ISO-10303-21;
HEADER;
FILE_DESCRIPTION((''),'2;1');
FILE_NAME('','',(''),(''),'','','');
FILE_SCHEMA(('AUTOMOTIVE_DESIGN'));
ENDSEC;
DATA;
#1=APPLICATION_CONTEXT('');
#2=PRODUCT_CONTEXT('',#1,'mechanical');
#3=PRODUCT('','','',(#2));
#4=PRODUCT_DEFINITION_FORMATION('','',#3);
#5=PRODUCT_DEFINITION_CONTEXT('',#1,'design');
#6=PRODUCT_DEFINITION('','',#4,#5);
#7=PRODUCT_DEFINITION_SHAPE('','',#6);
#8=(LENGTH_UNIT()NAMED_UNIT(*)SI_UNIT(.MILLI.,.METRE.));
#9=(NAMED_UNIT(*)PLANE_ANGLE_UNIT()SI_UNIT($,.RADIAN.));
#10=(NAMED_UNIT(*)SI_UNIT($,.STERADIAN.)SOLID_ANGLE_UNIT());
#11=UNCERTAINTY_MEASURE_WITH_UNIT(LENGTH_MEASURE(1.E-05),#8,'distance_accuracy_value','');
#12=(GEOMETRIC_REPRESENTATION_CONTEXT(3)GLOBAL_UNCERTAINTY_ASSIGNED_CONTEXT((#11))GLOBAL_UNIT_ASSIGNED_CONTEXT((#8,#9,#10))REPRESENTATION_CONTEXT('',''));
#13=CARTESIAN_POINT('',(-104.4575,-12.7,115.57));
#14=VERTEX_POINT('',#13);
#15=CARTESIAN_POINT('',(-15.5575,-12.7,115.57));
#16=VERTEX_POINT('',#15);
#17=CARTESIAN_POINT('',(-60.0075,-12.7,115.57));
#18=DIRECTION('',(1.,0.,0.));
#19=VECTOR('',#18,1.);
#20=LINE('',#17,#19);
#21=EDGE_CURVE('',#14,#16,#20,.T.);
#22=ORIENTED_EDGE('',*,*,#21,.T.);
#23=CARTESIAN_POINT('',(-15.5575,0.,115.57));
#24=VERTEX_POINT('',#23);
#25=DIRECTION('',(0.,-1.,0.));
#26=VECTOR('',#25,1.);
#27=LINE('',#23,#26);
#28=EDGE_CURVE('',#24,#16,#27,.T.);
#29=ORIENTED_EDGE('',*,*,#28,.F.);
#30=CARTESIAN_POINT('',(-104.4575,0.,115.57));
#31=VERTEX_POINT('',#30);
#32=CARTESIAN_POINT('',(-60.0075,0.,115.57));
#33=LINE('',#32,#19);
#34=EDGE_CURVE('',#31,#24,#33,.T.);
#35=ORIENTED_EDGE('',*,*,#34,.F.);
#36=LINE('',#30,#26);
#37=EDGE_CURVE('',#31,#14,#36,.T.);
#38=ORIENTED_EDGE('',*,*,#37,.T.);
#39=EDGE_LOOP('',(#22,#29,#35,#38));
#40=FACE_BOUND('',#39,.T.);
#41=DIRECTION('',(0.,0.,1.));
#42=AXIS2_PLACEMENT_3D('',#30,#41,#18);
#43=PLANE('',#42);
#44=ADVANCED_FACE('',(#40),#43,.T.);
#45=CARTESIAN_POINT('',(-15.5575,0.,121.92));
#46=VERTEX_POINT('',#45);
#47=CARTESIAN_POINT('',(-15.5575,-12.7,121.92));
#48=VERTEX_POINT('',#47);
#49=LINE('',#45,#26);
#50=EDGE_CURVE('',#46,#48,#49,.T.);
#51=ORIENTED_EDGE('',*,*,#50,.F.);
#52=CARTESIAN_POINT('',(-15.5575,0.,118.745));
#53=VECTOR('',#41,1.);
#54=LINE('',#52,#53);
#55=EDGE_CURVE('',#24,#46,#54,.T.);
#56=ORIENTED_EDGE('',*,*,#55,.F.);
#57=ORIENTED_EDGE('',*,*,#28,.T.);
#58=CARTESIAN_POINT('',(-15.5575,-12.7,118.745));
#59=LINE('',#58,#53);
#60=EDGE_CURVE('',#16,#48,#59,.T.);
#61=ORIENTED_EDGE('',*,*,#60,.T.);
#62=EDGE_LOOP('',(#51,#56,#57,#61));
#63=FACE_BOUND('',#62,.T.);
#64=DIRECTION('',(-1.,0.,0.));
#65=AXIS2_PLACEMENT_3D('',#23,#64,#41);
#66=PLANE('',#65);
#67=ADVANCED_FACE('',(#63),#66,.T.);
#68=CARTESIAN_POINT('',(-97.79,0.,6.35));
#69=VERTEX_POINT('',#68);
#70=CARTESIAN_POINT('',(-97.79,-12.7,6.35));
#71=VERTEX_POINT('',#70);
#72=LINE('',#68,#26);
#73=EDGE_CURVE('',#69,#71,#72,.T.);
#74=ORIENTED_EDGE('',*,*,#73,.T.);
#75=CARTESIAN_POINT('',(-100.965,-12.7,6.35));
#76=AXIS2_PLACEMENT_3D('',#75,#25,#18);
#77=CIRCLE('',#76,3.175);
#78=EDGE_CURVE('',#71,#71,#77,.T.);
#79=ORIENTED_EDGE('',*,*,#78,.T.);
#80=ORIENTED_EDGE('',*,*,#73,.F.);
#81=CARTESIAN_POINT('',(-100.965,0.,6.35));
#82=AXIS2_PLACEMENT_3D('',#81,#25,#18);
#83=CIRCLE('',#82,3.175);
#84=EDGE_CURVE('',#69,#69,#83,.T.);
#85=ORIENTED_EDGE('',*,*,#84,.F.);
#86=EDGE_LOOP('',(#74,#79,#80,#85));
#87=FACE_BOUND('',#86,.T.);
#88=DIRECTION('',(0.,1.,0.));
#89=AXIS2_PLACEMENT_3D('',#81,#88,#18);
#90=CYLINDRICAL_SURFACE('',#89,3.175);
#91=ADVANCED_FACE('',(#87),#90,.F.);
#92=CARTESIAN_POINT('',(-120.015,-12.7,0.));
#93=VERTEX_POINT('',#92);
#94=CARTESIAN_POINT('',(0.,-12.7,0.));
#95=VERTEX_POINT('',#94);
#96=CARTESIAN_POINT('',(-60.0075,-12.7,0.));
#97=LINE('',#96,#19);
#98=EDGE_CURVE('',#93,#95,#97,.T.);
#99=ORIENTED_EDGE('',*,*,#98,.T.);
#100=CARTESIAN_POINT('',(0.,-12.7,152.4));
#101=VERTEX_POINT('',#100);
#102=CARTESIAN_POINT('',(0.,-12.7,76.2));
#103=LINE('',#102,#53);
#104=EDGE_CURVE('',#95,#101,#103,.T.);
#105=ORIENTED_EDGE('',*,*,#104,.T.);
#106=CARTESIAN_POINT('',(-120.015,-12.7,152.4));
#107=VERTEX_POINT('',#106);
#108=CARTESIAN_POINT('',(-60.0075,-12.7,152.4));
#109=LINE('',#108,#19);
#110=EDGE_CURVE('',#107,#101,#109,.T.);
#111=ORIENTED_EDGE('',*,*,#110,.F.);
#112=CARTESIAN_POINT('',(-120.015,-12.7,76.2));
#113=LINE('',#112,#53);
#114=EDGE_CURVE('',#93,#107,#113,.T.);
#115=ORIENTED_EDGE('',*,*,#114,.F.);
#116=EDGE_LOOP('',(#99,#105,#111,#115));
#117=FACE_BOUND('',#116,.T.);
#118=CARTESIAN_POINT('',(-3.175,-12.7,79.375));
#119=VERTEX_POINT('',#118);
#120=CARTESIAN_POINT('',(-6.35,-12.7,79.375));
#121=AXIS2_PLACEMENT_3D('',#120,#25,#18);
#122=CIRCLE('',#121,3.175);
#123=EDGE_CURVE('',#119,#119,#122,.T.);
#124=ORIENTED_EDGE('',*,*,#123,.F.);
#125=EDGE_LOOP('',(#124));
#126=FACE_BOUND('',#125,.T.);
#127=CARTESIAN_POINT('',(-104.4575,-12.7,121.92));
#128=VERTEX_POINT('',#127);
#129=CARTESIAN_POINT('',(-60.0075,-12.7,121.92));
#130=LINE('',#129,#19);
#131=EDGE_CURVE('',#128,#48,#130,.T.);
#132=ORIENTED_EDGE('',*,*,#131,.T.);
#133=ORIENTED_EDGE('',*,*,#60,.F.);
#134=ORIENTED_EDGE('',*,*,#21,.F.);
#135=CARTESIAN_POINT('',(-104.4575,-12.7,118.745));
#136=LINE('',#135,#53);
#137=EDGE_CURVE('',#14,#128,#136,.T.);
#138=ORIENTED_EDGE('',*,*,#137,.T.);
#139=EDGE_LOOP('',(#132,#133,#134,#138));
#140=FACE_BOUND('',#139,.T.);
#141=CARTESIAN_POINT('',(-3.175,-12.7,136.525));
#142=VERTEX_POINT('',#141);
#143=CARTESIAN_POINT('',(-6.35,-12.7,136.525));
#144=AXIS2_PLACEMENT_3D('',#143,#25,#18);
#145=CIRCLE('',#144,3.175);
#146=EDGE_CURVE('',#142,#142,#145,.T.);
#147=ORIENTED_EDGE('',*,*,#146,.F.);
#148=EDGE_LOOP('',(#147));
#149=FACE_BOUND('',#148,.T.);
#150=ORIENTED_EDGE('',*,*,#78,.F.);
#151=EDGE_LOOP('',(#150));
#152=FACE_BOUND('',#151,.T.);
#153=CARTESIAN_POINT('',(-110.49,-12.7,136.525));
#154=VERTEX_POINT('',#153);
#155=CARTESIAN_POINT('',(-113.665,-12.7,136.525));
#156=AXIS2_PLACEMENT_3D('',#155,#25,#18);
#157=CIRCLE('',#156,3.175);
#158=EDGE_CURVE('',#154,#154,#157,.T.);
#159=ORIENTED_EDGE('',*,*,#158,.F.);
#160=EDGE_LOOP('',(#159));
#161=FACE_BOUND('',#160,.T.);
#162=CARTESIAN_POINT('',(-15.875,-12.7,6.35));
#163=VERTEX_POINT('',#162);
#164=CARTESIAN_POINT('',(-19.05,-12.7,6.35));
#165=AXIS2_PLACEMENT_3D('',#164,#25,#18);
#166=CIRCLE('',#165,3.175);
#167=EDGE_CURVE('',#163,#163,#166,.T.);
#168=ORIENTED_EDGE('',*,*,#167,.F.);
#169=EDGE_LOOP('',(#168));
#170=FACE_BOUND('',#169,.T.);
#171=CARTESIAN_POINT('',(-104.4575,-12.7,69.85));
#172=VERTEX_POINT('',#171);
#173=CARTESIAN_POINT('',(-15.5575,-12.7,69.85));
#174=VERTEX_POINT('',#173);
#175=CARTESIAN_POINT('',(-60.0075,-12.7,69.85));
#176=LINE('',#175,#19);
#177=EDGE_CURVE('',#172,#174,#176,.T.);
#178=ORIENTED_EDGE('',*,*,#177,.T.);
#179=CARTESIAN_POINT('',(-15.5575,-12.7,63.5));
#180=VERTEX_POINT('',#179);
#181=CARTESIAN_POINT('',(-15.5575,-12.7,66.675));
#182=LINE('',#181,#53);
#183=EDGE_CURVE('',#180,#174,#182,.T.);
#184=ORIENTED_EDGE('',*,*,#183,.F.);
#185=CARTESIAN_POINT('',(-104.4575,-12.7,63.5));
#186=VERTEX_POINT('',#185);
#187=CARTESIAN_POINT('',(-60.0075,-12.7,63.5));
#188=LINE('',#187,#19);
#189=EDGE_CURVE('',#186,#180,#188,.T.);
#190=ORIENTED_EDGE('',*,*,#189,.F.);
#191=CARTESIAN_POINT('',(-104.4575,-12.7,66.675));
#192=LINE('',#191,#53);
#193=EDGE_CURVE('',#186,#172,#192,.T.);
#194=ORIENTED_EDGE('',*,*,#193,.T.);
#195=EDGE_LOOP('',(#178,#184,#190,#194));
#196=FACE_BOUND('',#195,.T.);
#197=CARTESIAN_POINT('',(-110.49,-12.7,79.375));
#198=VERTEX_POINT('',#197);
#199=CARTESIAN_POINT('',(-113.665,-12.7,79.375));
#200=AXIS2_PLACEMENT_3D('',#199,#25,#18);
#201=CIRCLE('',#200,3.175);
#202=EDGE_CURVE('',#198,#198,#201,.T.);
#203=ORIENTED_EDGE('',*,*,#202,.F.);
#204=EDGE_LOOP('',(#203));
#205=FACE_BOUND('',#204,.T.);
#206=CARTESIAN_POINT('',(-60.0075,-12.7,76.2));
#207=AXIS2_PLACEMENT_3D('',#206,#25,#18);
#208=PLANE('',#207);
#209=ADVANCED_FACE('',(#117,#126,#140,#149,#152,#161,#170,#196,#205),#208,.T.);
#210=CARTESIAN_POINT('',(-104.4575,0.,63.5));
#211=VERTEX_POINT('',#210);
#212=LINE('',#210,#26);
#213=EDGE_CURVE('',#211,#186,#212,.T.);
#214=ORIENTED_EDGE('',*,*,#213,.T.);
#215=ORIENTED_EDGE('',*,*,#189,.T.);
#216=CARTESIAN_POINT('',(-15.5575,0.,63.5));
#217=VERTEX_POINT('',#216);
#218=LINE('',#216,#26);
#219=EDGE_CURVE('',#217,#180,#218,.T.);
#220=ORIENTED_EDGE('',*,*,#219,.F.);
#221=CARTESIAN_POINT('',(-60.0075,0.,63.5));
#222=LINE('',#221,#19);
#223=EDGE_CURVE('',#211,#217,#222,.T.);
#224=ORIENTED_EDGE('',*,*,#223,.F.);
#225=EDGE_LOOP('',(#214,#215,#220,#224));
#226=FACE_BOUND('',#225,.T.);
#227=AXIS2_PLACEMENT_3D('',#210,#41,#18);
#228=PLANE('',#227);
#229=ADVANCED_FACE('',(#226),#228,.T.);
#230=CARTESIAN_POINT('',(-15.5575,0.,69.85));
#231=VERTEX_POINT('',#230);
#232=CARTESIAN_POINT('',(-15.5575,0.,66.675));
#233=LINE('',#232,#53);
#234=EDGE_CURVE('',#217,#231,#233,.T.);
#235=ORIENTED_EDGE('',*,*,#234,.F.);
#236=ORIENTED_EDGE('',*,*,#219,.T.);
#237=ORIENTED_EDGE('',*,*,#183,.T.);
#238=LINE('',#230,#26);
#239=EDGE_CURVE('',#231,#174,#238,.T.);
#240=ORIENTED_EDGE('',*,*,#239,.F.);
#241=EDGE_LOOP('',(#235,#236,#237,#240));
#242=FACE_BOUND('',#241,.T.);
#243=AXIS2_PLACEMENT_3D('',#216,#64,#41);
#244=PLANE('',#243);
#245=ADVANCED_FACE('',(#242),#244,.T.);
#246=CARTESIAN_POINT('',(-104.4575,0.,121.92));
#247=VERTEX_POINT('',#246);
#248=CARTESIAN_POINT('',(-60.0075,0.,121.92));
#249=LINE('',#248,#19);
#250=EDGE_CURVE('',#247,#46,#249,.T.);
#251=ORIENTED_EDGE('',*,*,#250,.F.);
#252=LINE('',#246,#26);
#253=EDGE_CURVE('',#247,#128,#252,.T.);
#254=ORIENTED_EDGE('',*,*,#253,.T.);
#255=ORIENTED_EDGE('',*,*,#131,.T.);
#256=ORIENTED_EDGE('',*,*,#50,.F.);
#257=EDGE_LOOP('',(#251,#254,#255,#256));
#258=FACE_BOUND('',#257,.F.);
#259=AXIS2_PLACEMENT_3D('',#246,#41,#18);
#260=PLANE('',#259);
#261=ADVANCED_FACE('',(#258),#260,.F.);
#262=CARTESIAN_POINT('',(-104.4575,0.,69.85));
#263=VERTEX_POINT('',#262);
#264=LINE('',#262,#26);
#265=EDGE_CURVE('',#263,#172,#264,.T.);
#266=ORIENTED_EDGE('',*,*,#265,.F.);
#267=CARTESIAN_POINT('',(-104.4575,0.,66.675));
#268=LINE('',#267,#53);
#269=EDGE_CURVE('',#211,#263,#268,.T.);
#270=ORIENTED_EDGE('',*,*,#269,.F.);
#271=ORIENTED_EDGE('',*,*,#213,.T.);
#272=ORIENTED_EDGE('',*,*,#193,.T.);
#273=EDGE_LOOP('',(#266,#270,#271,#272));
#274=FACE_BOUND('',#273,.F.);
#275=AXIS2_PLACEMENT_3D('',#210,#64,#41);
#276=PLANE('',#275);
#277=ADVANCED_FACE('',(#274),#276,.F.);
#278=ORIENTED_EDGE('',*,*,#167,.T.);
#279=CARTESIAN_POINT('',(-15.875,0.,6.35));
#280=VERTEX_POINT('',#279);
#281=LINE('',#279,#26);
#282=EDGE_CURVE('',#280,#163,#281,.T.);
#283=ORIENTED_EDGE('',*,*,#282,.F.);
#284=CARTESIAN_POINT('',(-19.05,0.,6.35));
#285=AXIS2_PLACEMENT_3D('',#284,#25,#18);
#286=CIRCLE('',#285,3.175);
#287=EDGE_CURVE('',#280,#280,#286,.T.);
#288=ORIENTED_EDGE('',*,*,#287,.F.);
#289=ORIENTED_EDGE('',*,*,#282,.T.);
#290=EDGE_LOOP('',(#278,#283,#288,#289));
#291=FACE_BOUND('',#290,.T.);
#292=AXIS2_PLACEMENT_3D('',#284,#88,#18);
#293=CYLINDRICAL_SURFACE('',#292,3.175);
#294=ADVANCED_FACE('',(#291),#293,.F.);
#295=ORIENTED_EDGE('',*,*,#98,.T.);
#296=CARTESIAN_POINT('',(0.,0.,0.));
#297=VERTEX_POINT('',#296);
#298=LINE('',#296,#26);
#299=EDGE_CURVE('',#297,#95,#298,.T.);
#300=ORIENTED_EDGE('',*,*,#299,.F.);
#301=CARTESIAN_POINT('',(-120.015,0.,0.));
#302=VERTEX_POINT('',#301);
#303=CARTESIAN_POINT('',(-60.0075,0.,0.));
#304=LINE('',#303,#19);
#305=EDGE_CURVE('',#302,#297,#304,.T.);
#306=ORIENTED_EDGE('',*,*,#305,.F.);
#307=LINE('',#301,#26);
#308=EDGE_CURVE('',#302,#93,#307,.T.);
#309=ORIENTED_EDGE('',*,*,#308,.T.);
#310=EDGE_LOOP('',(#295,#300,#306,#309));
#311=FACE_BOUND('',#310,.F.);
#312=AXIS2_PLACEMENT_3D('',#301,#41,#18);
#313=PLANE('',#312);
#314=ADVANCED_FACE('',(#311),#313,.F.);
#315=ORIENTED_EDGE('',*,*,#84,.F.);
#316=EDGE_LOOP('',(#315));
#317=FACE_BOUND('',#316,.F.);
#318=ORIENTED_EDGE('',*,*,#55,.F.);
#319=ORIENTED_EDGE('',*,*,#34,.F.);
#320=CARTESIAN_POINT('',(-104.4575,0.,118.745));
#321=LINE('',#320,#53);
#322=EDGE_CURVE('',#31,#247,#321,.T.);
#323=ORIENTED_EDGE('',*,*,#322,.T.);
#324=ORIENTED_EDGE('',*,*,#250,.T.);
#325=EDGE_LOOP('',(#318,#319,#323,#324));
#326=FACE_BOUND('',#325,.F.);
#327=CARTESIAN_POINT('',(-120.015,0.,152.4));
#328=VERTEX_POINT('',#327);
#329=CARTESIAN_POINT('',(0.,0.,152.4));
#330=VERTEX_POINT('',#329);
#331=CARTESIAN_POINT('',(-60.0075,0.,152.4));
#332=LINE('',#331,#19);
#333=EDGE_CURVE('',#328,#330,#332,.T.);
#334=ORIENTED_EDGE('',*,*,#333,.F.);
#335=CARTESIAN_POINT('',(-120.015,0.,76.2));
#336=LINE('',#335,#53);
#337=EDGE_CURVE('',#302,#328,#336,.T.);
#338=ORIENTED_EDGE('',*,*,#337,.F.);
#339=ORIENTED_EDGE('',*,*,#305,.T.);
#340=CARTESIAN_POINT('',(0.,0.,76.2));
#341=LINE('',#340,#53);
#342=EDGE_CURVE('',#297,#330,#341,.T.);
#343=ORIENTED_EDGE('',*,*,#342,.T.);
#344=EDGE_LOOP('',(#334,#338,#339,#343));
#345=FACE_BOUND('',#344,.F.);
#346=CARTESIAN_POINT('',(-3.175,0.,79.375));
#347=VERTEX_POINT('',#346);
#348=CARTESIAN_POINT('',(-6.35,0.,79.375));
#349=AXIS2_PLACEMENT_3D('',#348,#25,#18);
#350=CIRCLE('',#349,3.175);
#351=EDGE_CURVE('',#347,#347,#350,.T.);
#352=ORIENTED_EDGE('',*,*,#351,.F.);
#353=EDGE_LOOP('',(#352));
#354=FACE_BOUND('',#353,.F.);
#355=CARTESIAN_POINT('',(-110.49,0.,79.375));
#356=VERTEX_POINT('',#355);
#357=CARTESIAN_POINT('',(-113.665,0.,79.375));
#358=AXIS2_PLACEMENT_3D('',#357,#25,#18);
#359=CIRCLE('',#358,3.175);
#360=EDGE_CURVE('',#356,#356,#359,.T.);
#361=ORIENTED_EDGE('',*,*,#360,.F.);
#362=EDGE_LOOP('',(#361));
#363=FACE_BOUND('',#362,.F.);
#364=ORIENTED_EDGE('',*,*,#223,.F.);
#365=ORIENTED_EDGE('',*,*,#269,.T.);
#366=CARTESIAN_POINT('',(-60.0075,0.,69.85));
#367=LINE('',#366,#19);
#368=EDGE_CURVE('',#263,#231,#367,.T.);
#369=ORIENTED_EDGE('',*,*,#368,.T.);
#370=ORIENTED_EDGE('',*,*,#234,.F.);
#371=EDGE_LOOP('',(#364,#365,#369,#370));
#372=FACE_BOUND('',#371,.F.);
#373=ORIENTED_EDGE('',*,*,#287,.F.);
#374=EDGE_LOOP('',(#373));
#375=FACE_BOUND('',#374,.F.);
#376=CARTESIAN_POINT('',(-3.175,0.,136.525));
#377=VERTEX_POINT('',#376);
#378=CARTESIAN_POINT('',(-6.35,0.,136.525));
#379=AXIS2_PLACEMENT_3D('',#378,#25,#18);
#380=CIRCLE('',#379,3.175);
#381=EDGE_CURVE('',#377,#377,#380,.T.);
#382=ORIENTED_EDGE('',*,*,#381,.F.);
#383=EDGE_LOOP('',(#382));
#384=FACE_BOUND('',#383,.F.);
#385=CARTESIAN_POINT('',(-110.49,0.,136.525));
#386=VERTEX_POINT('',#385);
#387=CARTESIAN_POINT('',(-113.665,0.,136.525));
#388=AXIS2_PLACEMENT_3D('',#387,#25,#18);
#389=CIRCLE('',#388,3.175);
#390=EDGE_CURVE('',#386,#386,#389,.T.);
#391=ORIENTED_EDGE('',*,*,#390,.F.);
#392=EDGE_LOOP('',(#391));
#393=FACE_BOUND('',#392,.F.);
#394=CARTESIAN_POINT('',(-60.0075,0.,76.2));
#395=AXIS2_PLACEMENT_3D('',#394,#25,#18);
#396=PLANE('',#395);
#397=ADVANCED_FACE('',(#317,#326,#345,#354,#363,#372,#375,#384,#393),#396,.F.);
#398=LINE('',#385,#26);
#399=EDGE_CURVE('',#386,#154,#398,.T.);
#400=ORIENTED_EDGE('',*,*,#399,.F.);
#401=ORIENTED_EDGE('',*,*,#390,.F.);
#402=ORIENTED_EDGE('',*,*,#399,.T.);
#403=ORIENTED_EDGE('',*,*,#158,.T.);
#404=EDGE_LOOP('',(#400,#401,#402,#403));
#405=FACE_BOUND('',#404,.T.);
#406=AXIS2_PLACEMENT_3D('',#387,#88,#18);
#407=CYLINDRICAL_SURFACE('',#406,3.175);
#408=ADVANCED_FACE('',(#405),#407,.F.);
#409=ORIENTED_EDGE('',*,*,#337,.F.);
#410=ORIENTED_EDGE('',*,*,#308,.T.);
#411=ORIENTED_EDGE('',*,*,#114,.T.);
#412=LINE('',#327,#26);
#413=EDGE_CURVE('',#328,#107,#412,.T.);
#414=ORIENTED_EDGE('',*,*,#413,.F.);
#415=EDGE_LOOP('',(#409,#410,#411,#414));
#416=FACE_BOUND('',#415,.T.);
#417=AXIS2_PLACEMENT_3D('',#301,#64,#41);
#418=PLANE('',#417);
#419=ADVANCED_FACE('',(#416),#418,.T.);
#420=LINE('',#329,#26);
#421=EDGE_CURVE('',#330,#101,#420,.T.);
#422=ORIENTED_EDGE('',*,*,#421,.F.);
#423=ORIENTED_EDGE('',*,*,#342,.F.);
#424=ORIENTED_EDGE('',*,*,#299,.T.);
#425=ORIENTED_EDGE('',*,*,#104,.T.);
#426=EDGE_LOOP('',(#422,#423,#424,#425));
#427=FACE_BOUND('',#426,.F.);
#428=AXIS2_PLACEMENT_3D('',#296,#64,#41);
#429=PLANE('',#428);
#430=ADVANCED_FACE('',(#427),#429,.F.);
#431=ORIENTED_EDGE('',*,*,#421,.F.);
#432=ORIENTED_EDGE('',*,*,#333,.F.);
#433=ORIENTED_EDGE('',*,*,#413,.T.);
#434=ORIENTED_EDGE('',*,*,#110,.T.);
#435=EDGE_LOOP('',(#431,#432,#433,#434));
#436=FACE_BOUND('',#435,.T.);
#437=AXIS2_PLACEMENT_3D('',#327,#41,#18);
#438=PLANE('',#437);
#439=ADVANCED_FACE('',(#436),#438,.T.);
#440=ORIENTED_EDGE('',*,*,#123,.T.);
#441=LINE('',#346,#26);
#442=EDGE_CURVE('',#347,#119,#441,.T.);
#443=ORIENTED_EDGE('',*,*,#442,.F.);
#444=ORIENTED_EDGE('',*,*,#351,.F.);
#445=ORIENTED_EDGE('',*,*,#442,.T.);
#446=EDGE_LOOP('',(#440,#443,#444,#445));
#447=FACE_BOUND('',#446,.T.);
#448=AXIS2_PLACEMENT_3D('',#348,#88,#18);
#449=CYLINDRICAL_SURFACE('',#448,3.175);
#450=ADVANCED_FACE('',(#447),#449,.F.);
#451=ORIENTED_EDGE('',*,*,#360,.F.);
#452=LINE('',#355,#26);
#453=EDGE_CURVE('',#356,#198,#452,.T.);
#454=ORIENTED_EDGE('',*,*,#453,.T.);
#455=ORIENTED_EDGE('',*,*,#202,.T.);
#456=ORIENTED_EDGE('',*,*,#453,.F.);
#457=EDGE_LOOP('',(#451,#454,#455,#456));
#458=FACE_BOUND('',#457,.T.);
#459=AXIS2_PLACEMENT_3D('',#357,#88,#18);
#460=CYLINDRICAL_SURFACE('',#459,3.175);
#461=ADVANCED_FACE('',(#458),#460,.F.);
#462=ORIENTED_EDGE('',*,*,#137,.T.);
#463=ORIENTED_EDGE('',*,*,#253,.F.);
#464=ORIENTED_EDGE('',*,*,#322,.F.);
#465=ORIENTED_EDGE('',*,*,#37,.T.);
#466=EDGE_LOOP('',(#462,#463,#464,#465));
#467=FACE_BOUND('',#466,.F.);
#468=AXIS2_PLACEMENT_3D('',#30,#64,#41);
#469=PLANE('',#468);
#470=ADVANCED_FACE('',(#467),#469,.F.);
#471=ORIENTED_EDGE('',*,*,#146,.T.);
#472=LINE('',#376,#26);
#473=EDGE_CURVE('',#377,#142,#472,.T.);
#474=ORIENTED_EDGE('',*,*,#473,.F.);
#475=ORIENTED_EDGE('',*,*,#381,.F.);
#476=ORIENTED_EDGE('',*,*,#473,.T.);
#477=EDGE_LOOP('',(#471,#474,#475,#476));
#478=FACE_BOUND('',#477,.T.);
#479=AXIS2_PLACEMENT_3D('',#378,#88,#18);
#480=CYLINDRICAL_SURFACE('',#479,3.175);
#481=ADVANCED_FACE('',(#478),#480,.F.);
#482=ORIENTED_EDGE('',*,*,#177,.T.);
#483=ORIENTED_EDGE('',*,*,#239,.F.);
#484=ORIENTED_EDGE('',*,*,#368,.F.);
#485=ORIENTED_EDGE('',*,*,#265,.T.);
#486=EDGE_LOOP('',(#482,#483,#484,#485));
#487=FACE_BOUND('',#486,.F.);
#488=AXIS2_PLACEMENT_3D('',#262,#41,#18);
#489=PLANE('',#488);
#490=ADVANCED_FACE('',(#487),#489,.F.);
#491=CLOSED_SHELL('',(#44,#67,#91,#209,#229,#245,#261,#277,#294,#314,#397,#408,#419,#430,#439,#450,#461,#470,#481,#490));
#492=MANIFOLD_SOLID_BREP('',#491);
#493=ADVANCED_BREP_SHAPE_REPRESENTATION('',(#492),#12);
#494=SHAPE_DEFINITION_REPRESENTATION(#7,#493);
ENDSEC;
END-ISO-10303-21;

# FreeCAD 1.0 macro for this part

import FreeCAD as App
import Part
import Sketcher

V = App.Vector
Q = App.Units.Quantity


def add_polygon(sketch, points):
    """Adds a closed chain of lines whose ends are joined by coincident constraints."""
    first, n = sketch.GeometryCount, len(points)
    for a, b in zip(points, points[1:] + points[:1]):
        sketch.addGeometry(Part.LineSegment(App.Vector(*a, 0), App.Vector(*b, 0)), False)
    for i in range(n):
        sketch.addConstraint(Sketcher.Constraint("Coincident", first + i, 2, first + (i + 1) % n, 1))

doc = App.newDocument("Part")
body = doc.addObject("PartDesign::Body", "Body")

# Sketch on XZ plane
sketch1 = doc.addObject("Sketcher::SketchObject", "Sketch")
body.addObject(sketch1)
sketch1.AttachmentSupport = (doc.XZ_Plane, [""])
sketch1.MapMode = "FlatFace"
add_polygon(sketch1, [(-120, 152.4), (-120, 0), (0, 0), (0, 152.4)])  # lines 0-3
sketch1.addGeometry(Part.Circle(V(-101, 6.3, 0), V(0, 0, 1), 3.2), False)  # 4
sketch1.addGeometry(Part.Circle(V(-19.1, 6.3, 0), V(0, 0, 1), 3.2), False)  # 5
add_polygon(sketch1, [(-15.6, 63.5), (-104.5, 63.5), (-104.5, 69.8), (-15.6, 69.8)])  # lines 6-9
sketch1.addGeometry(Part.Circle(V(-113.7, 79.4, 0), V(0, 0, 1), 3.2), False)  # 10
sketch1.addGeometry(Part.Circle(V(-113.7, 136.5, 0), V(0, 0, 1), 3.2), False)  # 11
sketch1.addGeometry(Part.Circle(V(-6.3, 79.4, 0), V(0, 0, 1), 3.2), False)  # 12
add_polygon(sketch1, [(-15.6, 115.6), (-104.5, 115.6), (-104.5, 121.9), (-15.6, 121.9)])  # lines 13-16
sketch1.addGeometry(Part.Circle(V(-6.3, 136.5, 0), V(0, 0, 1), 3.2), False)  # 17
sketch1.addConstraint([
    Sketcher.Constraint("Vertical", 0),
    Sketcher.Constraint("Horizontal", 1),
    Sketcher.Constraint("Vertical", 2),
    Sketcher.Constraint("Horizontal", 3),
    Sketcher.Constraint("Horizontal", 6),
    Sketcher.Constraint("Vertical", 7),
    Sketcher.Constraint("Horizontal", 8),
    Sketcher.Constraint("Vertical", 9),
    Sketcher.Constraint("Horizontal", 13),
    Sketcher.Constraint("Vertical", 14),
    Sketcher.Constraint("Horizontal", 15),
    Sketcher.Constraint("Vertical", 16),
    Sketcher.Constraint("Coincident", 1, 2, -1, 1),
    Sketcher.Constraint("Equal", 4, 5),
    Sketcher.Constraint("Equal", 5, 10),
    Sketcher.Constraint("Equal", 10, 11),
    Sketcher.Constraint("Equal", 11, 12),
    Sketcher.Constraint("Equal", 12, 17),
    Sketcher.Constraint("Horizontal", 4, 3, 5, 3),
    Sketcher.Constraint("Horizontal", 10, 3, 12, 3),
    Sketcher.Constraint("Horizontal", 11, 3, 17, 3),
    Sketcher.Constraint("Vertical", 10, 3, 11, 3),
    Sketcher.Constraint("Vertical", 12, 3, 17, 3),
    Sketcher.Constraint("Vertical", 7, 2, 13, 2),
    Sketcher.Constraint("Vertical", 9, 2, 15, 2),
    Sketcher.Constraint("Equal", 9, 14),
    Sketcher.Constraint("Diameter", 4, Q("0.25 in")),
    Sketcher.Constraint("DistanceY", 0, 2, 0, 1, Q("6 in")),
    Sketcher.Constraint("DistanceX", 6, 2, 6, 1, Q("3.5 in")),
    Sketcher.Constraint("DistanceY", 7, 1, 7, 2, Q("0.25 in")),
    Sketcher.Constraint("DistanceY", -1, 1, 6, 2, Q("2.5 in")),
    Sketcher.Constraint("DistanceY", -1, 1, 14, 2, Q("4.8 in")),
    Sketcher.Constraint("DistanceX", 10, 3, 4, 3, Q("0.5 in")),
    Sketcher.Constraint("DistanceX", 5, 3, 12, 3, Q("0.5 in")),
    Sketcher.Constraint("DistanceY", 4, 3, 7, 2, Q("2.5 in")),
    Sketcher.Constraint("DistanceX", 1, 1, 1, 2, Q("4.725 in")),
    Sketcher.Constraint("DistanceX", 5, 3, -1, 1, Q("0.75 in")),
    Sketcher.Constraint("DistanceY", 10, 3, 11, 3, Q("2.25 in")),
    Sketcher.Constraint("DistanceX", 0, 2, 4, 3, Q("0.75 in")),
    Sketcher.Constraint("DistanceY", -1, 1, 10, 3, Q("3.125 in")),
    Sketcher.Constraint("DistanceX", 6, 2, -1, 1, Q("4.1125 in")),
])
pad1 = doc.addObject("PartDesign::Pad", "Pad")
body.addObject(pad1)
pad1.Profile = sketch1
pad1.Length = Q("0.5 in")

doc.recompute()
